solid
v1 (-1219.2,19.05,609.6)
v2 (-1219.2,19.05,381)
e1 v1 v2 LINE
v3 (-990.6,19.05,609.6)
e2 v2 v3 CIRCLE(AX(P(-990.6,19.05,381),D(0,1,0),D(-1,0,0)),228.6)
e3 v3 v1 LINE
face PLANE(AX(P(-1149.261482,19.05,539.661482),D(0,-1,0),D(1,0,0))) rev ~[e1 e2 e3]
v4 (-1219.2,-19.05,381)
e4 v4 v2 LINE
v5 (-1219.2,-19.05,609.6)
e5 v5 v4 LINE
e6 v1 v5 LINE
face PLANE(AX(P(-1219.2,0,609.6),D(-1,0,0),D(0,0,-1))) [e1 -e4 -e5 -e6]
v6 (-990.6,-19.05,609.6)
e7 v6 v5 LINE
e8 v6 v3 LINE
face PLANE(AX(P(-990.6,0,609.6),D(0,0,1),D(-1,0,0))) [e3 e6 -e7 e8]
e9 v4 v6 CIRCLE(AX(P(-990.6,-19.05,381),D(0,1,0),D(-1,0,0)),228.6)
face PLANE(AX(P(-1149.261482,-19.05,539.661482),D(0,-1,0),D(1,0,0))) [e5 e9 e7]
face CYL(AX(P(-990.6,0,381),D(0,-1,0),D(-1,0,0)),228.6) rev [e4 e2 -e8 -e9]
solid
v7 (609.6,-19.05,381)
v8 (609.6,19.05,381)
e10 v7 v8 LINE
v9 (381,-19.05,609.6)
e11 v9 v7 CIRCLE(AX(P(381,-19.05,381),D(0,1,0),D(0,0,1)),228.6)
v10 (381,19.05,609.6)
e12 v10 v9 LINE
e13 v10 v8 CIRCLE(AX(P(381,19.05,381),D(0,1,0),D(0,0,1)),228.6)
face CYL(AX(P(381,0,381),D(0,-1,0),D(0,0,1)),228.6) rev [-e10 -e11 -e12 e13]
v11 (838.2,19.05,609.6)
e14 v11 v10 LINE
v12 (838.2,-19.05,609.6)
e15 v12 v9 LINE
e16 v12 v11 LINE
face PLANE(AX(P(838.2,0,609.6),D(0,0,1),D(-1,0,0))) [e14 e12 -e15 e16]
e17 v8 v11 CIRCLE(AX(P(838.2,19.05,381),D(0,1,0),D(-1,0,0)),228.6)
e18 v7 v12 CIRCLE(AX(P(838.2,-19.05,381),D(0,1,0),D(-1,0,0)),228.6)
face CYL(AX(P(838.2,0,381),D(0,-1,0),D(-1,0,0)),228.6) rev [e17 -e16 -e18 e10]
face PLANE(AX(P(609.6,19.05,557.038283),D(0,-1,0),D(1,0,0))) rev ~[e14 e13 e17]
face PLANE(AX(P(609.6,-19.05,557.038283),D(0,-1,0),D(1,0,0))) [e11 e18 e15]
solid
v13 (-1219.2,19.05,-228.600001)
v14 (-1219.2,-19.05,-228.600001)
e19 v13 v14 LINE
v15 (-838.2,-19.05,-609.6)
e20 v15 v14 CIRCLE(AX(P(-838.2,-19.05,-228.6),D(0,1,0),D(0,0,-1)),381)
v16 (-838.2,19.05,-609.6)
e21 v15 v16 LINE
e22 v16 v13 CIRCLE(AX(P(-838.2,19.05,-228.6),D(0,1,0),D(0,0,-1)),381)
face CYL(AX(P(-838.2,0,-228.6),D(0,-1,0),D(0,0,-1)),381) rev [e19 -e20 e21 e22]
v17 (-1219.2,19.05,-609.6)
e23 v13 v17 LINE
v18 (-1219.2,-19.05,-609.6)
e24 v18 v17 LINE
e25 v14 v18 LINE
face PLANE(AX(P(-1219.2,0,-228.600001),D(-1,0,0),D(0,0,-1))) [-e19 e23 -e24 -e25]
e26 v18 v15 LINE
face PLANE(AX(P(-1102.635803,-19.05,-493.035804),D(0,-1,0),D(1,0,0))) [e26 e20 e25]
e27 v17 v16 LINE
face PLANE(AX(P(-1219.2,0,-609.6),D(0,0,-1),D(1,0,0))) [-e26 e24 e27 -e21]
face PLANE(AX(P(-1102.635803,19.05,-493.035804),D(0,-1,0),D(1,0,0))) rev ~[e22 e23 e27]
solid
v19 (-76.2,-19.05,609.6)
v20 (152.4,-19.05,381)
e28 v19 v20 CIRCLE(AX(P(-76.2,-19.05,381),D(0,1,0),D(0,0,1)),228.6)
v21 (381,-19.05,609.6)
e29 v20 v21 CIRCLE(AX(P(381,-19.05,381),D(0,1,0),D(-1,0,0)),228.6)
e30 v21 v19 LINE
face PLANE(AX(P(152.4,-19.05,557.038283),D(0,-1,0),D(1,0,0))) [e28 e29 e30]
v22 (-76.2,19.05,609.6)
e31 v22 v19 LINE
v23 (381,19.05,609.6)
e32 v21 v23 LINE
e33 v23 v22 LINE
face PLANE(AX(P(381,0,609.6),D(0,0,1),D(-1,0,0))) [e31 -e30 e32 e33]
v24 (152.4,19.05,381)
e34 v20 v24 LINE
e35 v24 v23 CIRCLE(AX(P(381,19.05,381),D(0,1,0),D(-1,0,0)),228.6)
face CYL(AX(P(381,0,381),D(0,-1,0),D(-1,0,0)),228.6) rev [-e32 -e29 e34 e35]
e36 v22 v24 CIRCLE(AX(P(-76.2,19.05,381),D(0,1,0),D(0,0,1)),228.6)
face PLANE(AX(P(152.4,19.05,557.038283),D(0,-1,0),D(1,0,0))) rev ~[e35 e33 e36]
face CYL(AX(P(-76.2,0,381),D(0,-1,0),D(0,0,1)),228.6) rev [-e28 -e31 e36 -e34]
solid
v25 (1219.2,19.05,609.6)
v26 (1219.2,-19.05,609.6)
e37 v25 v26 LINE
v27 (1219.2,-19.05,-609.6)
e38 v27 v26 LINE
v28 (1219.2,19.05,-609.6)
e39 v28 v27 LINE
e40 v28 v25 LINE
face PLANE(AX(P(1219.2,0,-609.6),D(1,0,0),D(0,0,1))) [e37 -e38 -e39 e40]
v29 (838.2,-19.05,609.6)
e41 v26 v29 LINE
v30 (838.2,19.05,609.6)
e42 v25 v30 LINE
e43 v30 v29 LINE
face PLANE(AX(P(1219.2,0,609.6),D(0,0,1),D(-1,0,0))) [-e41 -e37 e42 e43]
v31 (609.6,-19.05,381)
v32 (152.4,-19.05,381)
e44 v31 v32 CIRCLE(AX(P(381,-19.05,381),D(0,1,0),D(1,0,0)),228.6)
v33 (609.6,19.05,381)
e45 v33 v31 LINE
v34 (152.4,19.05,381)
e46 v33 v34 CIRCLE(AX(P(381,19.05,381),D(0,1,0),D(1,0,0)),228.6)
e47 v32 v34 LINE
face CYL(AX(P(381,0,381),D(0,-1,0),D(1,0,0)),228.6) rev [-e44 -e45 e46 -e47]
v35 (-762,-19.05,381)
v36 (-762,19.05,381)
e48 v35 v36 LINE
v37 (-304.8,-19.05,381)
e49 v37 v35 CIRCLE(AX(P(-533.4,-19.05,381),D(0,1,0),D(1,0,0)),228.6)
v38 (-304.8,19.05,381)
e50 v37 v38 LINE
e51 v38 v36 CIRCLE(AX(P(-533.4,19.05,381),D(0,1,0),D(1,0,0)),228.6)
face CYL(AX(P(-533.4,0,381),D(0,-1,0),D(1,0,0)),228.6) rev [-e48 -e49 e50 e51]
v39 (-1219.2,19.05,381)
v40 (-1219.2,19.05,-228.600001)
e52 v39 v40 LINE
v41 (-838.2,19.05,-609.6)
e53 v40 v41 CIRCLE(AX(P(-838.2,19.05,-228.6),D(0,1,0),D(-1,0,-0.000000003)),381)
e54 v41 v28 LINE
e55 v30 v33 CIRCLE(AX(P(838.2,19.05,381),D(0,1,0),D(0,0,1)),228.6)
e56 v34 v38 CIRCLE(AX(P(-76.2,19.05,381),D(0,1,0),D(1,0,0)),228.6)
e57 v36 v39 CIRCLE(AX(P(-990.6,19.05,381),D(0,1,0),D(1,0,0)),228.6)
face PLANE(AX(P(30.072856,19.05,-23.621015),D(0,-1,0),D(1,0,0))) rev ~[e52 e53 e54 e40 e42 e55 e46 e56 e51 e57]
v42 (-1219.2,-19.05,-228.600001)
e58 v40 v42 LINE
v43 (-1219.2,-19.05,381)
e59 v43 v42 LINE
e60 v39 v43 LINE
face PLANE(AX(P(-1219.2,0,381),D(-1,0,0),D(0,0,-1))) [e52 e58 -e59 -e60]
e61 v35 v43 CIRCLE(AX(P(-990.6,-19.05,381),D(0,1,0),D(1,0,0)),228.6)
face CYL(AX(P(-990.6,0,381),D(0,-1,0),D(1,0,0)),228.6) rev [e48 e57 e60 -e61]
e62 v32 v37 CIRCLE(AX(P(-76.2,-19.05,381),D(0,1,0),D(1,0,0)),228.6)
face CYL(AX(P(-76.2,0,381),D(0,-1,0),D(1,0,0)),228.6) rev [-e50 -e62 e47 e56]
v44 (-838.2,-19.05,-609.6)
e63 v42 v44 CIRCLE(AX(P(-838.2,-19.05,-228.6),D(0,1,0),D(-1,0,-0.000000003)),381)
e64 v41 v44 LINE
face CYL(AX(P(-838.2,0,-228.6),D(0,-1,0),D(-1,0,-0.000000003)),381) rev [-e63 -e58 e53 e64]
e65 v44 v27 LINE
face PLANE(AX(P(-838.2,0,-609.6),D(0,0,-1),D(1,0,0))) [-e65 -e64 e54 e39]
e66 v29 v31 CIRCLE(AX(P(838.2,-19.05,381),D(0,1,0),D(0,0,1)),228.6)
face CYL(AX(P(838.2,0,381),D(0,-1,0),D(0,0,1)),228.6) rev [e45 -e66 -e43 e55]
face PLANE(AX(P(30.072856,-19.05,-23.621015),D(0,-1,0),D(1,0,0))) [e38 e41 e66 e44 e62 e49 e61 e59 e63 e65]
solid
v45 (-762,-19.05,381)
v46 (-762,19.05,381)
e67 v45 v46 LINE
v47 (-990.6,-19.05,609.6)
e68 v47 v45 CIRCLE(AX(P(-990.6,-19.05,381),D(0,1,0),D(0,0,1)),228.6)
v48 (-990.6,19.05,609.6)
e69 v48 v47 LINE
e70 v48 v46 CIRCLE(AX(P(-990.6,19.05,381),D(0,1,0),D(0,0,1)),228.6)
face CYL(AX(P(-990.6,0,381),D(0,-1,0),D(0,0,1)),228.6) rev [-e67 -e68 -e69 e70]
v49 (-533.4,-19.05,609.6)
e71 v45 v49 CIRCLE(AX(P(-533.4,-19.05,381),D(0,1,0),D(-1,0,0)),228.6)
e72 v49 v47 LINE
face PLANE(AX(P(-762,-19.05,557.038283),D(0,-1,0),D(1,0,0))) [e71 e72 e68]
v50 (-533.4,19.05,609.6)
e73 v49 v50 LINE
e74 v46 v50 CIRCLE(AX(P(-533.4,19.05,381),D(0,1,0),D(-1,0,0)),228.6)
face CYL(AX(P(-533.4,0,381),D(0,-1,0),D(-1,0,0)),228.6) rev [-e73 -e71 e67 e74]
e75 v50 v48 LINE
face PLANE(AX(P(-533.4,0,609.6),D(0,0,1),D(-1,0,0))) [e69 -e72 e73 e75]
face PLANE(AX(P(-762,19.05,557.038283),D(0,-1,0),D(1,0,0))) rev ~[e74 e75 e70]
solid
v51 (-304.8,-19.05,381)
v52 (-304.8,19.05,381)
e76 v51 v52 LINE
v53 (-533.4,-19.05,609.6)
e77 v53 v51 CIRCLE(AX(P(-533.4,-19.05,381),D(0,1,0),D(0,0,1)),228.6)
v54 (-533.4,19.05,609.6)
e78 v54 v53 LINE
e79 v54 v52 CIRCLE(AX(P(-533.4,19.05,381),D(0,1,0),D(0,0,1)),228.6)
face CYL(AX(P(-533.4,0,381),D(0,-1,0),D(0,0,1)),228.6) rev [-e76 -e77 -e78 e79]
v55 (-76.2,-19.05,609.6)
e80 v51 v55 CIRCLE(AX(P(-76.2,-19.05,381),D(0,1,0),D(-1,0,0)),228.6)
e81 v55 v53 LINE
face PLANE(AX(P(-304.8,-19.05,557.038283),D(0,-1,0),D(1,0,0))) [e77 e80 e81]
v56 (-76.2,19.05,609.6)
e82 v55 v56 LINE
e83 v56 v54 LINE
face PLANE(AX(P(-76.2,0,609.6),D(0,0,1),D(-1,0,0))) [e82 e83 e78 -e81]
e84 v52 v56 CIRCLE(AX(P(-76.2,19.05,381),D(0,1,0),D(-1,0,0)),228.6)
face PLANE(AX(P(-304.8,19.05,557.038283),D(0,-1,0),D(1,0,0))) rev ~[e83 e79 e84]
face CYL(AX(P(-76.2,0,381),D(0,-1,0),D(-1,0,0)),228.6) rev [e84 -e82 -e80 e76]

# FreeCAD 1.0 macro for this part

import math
import FreeCAD as App
import Part
import Sketcher

V = App.Vector
Q = App.Units.Quantity

doc = App.newDocument("Part")
body = doc.addObject("PartDesign::Body", "Body")

sketch1 = doc.addObject("Sketcher::SketchObject", "Sketch")
body.addObject(sketch1)
sketch1.AttachmentSupport = (doc.XZ_Plane, [""])
sketch1.MapMode = "FlatFace"
sketch1.addGeometry([
    Part.LineSegment(V(-991, 610, 0), V(-1219, 610, 0)),
    Part.LineSegment(V(-1219, 610, 0), V(-1219, 381, 0)),
    Part.ArcOfCircle(Part.Circle(V(-991, 381, 0), V(0, 0, 1), 229), math.radians(90), math.radians(180)),
], False)
sketch1.addConstraint([
    Sketcher.Constraint("Coincident", 0, 2, 1, 1),
    Sketcher.Constraint("Tangent", 1, 2, 2, 2),
    Sketcher.Constraint("Tangent", 2, 1, 0, 1),
    Sketcher.Constraint("Horizontal", 0),
    Sketcher.Constraint("Vertical", 1),
    Sketcher.Constraint("Radius", 2, Q("9 in")),
    Sketcher.Constraint("DistanceX", 2, 3, -1, 1, Q("39 in")),
    Sketcher.Constraint("DistanceY", -1, 1, 2, 3, Q("15 in")),
])
pad1 = doc.addObject("PartDesign::Pad", "Pad")
body.addObject(pad1)
pad1.Profile = sketch1
pad1.Length = Q("1.5 in")
pad1.Midplane = True
body2 = doc.addObject("PartDesign::Body", "Body001")

sketch2 = doc.addObject("Sketcher::SketchObject", "Sketch001")
body2.addObject(sketch2)
sketch2.AttachmentSupport = (doc.getObject("XZ_Plane001"), [""])
sketch2.MapMode = "FlatFace"
sketch2.addGeometry([
    Part.LineSegment(V(-533, 610, 0), V(-991, 610, 0)),
    Part.ArcOfCircle(Part.Circle(V(-991, 381, 0), V(0, 0, 1), 229), math.radians(0), math.radians(90)),
    Part.ArcOfCircle(Part.Circle(V(-533, 381, 0), V(0, 0, 1), 229), math.radians(90), math.radians(180)),
], False)
sketch2.addConstraint([
    Sketcher.Constraint("Tangent", 0, 2, 1, 2),
    Sketcher.Constraint("Tangent", 1, 1, 2, 2),
    Sketcher.Constraint("Tangent", 2, 1, 0, 1),
    Sketcher.Constraint("Horizontal", 0),
    Sketcher.Constraint("Equal", 1, 2),
    Sketcher.Constraint("Radius", 1, Q("9 in")),
    Sketcher.Constraint("DistanceX", 1, 3, -1, 1, Q("39 in")),
    Sketcher.Constraint("DistanceY", -1, 1, 1, 3, Q("15 in")),
])
pad2 = doc.addObject("PartDesign::Pad", "Pad001")
body2.addObject(pad2)
pad2.Profile = sketch2
pad2.Length = Q("1.5 in")
pad2.Midplane = True
body3 = doc.addObject("PartDesign::Body", "Body002")

sketch3 = doc.addObject("Sketcher::SketchObject", "Sketch002")
body3.addObject(sketch3)
sketch3.AttachmentSupport = (doc.getObject("XZ_Plane002"), [""])
sketch3.MapMode = "FlatFace"
sketch3.addGeometry([
    Part.LineSegment(V(-76, 610, 0), V(-533, 610, 0)),
    Part.ArcOfCircle(Part.Circle(V(-533, 381, 0), V(0, 0, 1), 229), math.radians(0), math.radians(90)),
    Part.ArcOfCircle(Part.Circle(V(-76, 381, 0), V(0, 0, 1), 229), math.radians(90), math.radians(180)),
], False)
sketch3.addConstraint([
    Sketcher.Constraint("Tangent", 0, 2, 1, 2),
    Sketcher.Constraint("Tangent", 1, 1, 2, 2),
    Sketcher.Constraint("Tangent", 2, 1, 0, 1),
    Sketcher.Constraint("Horizontal", 0),
    Sketcher.Constraint("Equal", 1, 2),
    Sketcher.Constraint("Radius", 1, Q("9 in")),
    Sketcher.Constraint("DistanceX", 1, 3, -1, 1, Q("21 in")),
    Sketcher.Constraint("DistanceY", -1, 1, 1, 3, Q("15 in")),
])
pad3 = doc.addObject("PartDesign::Pad", "Pad002")
body3.addObject(pad3)
pad3.Profile = sketch3
pad3.Length = Q("1.5 in")
pad3.Midplane = True
body4 = doc.addObject("PartDesign::Body", "Body003")

sketch4 = doc.addObject("Sketcher::SketchObject", "Sketch003")
body4.addObject(sketch4)
sketch4.AttachmentSupport = (doc.getObject("XZ_Plane003"), [""])
sketch4.MapMode = "FlatFace"
sketch4.addGeometry([
    Part.LineSegment(V(381, 610, 0), V(-76, 610, 0)),
    Part.ArcOfCircle(Part.Circle(V(-76, 381, 0), V(0, 0, 1), 229), math.radians(0), math.radians(90)),
    Part.ArcOfCircle(Part.Circle(V(381, 381, 0), V(0, 0, 1), 229), math.radians(90), math.radians(180)),
], False)
sketch4.addConstraint([
    Sketcher.Constraint("Tangent", 0, 2, 1, 2),
    Sketcher.Constraint("Tangent", 1, 1, 2, 2),
    Sketcher.Constraint("Tangent", 2, 1, 0, 1),
    Sketcher.Constraint("Horizontal", 0),
    Sketcher.Constraint("Equal", 1, 2),
    Sketcher.Constraint("Radius", 1, Q("9 in")),
    Sketcher.Constraint("DistanceX", 1, 3, -1, 1, Q("3 in")),
    Sketcher.Constraint("DistanceY", -1, 1, 1, 3, Q("15 in")),
])
pad4 = doc.addObject("PartDesign::Pad", "Pad003")
body4.addObject(pad4)
pad4.Profile = sketch4
pad4.Length = Q("1.5 in")
pad4.Midplane = True
body5 = doc.addObject("PartDesign::Body", "Body004")

sketch5 = doc.addObject("Sketcher::SketchObject", "Sketch004")
body5.addObject(sketch5)
sketch5.AttachmentSupport = (doc.getObject("XZ_Plane004"), [""])
sketch5.MapMode = "FlatFace"
sketch5.addGeometry([
    Part.LineSegment(V(838, 610, 0), V(381, 610, 0)),
    Part.ArcOfCircle(Part.Circle(V(381, 381, 0), V(0, 0, 1), 229), math.radians(0), math.radians(90)),
    Part.ArcOfCircle(Part.Circle(V(838, 381, 0), V(0, 0, 1), 229), math.radians(90), math.radians(180)),
], False)
sketch5.addConstraint([
    Sketcher.Constraint("Tangent", 0, 2, 1, 2),
    Sketcher.Constraint("Tangent", 1, 1, 2, 2),
    Sketcher.Constraint("Tangent", 2, 1, 0, 1),
    Sketcher.Constraint("Horizontal", 0),
    Sketcher.Constraint("Equal", 1, 2),
    Sketcher.Constraint("Radius", 1, Q("9 in")),
    Sketcher.Constraint("DistanceX", -1, 1, 1, 3, Q("15 in")),
    Sketcher.Constraint("DistanceY", -1, 1, 1, 3, Q("15 in")),
])
pad5 = doc.addObject("PartDesign::Pad", "Pad004")
body5.addObject(pad5)
pad5.Profile = sketch5
pad5.Length = Q("1.5 in")
pad5.Midplane = True
body6 = doc.addObject("PartDesign::Body", "Body005")

sketch6 = doc.addObject("Sketcher::SketchObject", "Sketch005")
body6.addObject(sketch6)
sketch6.AttachmentSupport = (doc.getObject("XZ_Plane005"), [""])
sketch6.MapMode = "FlatFace"
sketch6.addGeometry([
    Part.ArcOfCircle(Part.Circle(V(-991, 381, 0), V(0, 0, 1), 229), math.radians(180), math.radians(360)),
    Part.LineSegment(V(-1219, 381, 0), V(-1219, -229, 0)),
    Part.ArcOfCircle(Part.Circle(V(-838, -229, 0), V(0, 0, 1), 381), math.radians(-90), math.radians(180)),
    Part.LineSegment(V(-838, -610, 0), V(1219, -610, 0)),
    Part.LineSegment(V(1219, -610, 0), V(1219, 610, 0)),
    Part.LineSegment(V(1219, 610, 0), V(838, 610, 0)),
    Part.ArcOfCircle(Part.Circle(V(838, 381, 0), V(0, 0, 1), 229), math.radians(180), math.radians(450)),
    Part.ArcOfCircle(Part.Circle(V(381, 381, 0), V(0, 0, 1), 229), math.radians(180), math.radians(360)),
    Part.ArcOfCircle(Part.Circle(V(-76, 381, 0), V(0, 0, 1), 229), math.radians(180), math.radians(360)),
    Part.ArcOfCircle(Part.Circle(V(-533, 381, 0), V(0, 0, 1), 229), math.radians(180), math.radians(360)),
], False)
sketch6.addConstraint([
    Sketcher.Constraint("Tangent", 0, 1, 1, 1),
    Sketcher.Constraint("Tangent", 1, 2, 2, 2),
    Sketcher.Constraint("Tangent", 2, 1, 3, 1),
    Sketcher.Constraint("Coincident", 3, 2, 4, 1),
    Sketcher.Constraint("Coincident", 4, 2, 5, 1),
    Sketcher.Constraint("Tangent", 5, 2, 6, 2),
    Sketcher.Constraint("Tangent", 6, 1, 7, 2),
    Sketcher.Constraint("Tangent", 7, 1, 8, 2),
    Sketcher.Constraint("Tangent", 8, 1, 9, 2),
    Sketcher.Constraint("Tangent", 9, 1, 0, 2),
    Sketcher.Constraint("Vertical", 1),
    Sketcher.Constraint("Horizontal", 3),
    Sketcher.Constraint("Vertical", 4),
    Sketcher.Constraint("Horizontal", 5),
    Sketcher.Constraint("Equal", 0, 6),
    Sketcher.Constraint("Equal", 6, 7),
    Sketcher.Constraint("Equal", 7, 8),
    Sketcher.Constraint("Equal", 8, 9),
    Sketcher.Constraint("Symmetric", 2, 1, 5, 2, -1, 1),
    Sketcher.Constraint("Horizontal", 0, 3, 6, 3),
    Sketcher.Constraint("Horizontal", 6, 3, 7, 3),
    Sketcher.Constraint("Horizontal", 7, 3, 8, 3),
    Sketcher.Constraint("Horizontal", 8, 3, 9, 3),
    Sketcher.Constraint("Radius", 0, Q("9 in")),
    Sketcher.Constraint("Radius", 2, Q("15 in")),
    Sketcher.Constraint("DistanceX", 3, 1, 3, 2, Q("81 in")),
    Sketcher.Constraint("DistanceY", 1, 2, 1, 1, Q("24 in")),
])
pad6 = doc.addObject("PartDesign::Pad", "Pad005")
body6.addObject(pad6)
pad6.Profile = sketch6
pad6.Length = Q("1.5 in")
pad6.Midplane = True
body7 = doc.addObject("PartDesign::Body", "Body006")

sketch7 = doc.addObject("Sketcher::SketchObject", "Sketch006")
body7.addObject(sketch7)
sketch7.AttachmentSupport = (doc.getObject("XZ_Plane006"), [""])
sketch7.MapMode = "FlatFace"
sketch7.addGeometry([
    Part.ArcOfCircle(Part.Circle(V(-838, -229, 0), V(0, 0, 1), 381), math.radians(-180), math.radians(-90)),
    Part.LineSegment(V(-1219, -229, 0), V(-1219, -610, 0)),
    Part.LineSegment(V(-1219, -610, 0), V(-838, -610, 0)),
], False)
sketch7.addConstraint([
    Sketcher.Constraint("Tangent", 0, 1, 1, 1),
    Sketcher.Constraint("Coincident", 1, 2, 2, 1),
    Sketcher.Constraint("Tangent", 2, 2, 0, 2),
    Sketcher.Constraint("Vertical", 1),
    Sketcher.Constraint("Horizontal", 2),
    Sketcher.Constraint("Radius", 0, Q("15 in")),
    Sketcher.Constraint("DistanceX", 0, 3, -1, 1, Q("33 in")),
    Sketcher.Constraint("DistanceY", 0, 3, -1, 1, Q("9 in")),
])
pad7 = doc.addObject("PartDesign::Pad", "Pad006")
body7.addObject(pad7)
pad7.Profile = sketch7
pad7.Length = Q("1.5 in")
pad7.Midplane = True

doc.recompute()
